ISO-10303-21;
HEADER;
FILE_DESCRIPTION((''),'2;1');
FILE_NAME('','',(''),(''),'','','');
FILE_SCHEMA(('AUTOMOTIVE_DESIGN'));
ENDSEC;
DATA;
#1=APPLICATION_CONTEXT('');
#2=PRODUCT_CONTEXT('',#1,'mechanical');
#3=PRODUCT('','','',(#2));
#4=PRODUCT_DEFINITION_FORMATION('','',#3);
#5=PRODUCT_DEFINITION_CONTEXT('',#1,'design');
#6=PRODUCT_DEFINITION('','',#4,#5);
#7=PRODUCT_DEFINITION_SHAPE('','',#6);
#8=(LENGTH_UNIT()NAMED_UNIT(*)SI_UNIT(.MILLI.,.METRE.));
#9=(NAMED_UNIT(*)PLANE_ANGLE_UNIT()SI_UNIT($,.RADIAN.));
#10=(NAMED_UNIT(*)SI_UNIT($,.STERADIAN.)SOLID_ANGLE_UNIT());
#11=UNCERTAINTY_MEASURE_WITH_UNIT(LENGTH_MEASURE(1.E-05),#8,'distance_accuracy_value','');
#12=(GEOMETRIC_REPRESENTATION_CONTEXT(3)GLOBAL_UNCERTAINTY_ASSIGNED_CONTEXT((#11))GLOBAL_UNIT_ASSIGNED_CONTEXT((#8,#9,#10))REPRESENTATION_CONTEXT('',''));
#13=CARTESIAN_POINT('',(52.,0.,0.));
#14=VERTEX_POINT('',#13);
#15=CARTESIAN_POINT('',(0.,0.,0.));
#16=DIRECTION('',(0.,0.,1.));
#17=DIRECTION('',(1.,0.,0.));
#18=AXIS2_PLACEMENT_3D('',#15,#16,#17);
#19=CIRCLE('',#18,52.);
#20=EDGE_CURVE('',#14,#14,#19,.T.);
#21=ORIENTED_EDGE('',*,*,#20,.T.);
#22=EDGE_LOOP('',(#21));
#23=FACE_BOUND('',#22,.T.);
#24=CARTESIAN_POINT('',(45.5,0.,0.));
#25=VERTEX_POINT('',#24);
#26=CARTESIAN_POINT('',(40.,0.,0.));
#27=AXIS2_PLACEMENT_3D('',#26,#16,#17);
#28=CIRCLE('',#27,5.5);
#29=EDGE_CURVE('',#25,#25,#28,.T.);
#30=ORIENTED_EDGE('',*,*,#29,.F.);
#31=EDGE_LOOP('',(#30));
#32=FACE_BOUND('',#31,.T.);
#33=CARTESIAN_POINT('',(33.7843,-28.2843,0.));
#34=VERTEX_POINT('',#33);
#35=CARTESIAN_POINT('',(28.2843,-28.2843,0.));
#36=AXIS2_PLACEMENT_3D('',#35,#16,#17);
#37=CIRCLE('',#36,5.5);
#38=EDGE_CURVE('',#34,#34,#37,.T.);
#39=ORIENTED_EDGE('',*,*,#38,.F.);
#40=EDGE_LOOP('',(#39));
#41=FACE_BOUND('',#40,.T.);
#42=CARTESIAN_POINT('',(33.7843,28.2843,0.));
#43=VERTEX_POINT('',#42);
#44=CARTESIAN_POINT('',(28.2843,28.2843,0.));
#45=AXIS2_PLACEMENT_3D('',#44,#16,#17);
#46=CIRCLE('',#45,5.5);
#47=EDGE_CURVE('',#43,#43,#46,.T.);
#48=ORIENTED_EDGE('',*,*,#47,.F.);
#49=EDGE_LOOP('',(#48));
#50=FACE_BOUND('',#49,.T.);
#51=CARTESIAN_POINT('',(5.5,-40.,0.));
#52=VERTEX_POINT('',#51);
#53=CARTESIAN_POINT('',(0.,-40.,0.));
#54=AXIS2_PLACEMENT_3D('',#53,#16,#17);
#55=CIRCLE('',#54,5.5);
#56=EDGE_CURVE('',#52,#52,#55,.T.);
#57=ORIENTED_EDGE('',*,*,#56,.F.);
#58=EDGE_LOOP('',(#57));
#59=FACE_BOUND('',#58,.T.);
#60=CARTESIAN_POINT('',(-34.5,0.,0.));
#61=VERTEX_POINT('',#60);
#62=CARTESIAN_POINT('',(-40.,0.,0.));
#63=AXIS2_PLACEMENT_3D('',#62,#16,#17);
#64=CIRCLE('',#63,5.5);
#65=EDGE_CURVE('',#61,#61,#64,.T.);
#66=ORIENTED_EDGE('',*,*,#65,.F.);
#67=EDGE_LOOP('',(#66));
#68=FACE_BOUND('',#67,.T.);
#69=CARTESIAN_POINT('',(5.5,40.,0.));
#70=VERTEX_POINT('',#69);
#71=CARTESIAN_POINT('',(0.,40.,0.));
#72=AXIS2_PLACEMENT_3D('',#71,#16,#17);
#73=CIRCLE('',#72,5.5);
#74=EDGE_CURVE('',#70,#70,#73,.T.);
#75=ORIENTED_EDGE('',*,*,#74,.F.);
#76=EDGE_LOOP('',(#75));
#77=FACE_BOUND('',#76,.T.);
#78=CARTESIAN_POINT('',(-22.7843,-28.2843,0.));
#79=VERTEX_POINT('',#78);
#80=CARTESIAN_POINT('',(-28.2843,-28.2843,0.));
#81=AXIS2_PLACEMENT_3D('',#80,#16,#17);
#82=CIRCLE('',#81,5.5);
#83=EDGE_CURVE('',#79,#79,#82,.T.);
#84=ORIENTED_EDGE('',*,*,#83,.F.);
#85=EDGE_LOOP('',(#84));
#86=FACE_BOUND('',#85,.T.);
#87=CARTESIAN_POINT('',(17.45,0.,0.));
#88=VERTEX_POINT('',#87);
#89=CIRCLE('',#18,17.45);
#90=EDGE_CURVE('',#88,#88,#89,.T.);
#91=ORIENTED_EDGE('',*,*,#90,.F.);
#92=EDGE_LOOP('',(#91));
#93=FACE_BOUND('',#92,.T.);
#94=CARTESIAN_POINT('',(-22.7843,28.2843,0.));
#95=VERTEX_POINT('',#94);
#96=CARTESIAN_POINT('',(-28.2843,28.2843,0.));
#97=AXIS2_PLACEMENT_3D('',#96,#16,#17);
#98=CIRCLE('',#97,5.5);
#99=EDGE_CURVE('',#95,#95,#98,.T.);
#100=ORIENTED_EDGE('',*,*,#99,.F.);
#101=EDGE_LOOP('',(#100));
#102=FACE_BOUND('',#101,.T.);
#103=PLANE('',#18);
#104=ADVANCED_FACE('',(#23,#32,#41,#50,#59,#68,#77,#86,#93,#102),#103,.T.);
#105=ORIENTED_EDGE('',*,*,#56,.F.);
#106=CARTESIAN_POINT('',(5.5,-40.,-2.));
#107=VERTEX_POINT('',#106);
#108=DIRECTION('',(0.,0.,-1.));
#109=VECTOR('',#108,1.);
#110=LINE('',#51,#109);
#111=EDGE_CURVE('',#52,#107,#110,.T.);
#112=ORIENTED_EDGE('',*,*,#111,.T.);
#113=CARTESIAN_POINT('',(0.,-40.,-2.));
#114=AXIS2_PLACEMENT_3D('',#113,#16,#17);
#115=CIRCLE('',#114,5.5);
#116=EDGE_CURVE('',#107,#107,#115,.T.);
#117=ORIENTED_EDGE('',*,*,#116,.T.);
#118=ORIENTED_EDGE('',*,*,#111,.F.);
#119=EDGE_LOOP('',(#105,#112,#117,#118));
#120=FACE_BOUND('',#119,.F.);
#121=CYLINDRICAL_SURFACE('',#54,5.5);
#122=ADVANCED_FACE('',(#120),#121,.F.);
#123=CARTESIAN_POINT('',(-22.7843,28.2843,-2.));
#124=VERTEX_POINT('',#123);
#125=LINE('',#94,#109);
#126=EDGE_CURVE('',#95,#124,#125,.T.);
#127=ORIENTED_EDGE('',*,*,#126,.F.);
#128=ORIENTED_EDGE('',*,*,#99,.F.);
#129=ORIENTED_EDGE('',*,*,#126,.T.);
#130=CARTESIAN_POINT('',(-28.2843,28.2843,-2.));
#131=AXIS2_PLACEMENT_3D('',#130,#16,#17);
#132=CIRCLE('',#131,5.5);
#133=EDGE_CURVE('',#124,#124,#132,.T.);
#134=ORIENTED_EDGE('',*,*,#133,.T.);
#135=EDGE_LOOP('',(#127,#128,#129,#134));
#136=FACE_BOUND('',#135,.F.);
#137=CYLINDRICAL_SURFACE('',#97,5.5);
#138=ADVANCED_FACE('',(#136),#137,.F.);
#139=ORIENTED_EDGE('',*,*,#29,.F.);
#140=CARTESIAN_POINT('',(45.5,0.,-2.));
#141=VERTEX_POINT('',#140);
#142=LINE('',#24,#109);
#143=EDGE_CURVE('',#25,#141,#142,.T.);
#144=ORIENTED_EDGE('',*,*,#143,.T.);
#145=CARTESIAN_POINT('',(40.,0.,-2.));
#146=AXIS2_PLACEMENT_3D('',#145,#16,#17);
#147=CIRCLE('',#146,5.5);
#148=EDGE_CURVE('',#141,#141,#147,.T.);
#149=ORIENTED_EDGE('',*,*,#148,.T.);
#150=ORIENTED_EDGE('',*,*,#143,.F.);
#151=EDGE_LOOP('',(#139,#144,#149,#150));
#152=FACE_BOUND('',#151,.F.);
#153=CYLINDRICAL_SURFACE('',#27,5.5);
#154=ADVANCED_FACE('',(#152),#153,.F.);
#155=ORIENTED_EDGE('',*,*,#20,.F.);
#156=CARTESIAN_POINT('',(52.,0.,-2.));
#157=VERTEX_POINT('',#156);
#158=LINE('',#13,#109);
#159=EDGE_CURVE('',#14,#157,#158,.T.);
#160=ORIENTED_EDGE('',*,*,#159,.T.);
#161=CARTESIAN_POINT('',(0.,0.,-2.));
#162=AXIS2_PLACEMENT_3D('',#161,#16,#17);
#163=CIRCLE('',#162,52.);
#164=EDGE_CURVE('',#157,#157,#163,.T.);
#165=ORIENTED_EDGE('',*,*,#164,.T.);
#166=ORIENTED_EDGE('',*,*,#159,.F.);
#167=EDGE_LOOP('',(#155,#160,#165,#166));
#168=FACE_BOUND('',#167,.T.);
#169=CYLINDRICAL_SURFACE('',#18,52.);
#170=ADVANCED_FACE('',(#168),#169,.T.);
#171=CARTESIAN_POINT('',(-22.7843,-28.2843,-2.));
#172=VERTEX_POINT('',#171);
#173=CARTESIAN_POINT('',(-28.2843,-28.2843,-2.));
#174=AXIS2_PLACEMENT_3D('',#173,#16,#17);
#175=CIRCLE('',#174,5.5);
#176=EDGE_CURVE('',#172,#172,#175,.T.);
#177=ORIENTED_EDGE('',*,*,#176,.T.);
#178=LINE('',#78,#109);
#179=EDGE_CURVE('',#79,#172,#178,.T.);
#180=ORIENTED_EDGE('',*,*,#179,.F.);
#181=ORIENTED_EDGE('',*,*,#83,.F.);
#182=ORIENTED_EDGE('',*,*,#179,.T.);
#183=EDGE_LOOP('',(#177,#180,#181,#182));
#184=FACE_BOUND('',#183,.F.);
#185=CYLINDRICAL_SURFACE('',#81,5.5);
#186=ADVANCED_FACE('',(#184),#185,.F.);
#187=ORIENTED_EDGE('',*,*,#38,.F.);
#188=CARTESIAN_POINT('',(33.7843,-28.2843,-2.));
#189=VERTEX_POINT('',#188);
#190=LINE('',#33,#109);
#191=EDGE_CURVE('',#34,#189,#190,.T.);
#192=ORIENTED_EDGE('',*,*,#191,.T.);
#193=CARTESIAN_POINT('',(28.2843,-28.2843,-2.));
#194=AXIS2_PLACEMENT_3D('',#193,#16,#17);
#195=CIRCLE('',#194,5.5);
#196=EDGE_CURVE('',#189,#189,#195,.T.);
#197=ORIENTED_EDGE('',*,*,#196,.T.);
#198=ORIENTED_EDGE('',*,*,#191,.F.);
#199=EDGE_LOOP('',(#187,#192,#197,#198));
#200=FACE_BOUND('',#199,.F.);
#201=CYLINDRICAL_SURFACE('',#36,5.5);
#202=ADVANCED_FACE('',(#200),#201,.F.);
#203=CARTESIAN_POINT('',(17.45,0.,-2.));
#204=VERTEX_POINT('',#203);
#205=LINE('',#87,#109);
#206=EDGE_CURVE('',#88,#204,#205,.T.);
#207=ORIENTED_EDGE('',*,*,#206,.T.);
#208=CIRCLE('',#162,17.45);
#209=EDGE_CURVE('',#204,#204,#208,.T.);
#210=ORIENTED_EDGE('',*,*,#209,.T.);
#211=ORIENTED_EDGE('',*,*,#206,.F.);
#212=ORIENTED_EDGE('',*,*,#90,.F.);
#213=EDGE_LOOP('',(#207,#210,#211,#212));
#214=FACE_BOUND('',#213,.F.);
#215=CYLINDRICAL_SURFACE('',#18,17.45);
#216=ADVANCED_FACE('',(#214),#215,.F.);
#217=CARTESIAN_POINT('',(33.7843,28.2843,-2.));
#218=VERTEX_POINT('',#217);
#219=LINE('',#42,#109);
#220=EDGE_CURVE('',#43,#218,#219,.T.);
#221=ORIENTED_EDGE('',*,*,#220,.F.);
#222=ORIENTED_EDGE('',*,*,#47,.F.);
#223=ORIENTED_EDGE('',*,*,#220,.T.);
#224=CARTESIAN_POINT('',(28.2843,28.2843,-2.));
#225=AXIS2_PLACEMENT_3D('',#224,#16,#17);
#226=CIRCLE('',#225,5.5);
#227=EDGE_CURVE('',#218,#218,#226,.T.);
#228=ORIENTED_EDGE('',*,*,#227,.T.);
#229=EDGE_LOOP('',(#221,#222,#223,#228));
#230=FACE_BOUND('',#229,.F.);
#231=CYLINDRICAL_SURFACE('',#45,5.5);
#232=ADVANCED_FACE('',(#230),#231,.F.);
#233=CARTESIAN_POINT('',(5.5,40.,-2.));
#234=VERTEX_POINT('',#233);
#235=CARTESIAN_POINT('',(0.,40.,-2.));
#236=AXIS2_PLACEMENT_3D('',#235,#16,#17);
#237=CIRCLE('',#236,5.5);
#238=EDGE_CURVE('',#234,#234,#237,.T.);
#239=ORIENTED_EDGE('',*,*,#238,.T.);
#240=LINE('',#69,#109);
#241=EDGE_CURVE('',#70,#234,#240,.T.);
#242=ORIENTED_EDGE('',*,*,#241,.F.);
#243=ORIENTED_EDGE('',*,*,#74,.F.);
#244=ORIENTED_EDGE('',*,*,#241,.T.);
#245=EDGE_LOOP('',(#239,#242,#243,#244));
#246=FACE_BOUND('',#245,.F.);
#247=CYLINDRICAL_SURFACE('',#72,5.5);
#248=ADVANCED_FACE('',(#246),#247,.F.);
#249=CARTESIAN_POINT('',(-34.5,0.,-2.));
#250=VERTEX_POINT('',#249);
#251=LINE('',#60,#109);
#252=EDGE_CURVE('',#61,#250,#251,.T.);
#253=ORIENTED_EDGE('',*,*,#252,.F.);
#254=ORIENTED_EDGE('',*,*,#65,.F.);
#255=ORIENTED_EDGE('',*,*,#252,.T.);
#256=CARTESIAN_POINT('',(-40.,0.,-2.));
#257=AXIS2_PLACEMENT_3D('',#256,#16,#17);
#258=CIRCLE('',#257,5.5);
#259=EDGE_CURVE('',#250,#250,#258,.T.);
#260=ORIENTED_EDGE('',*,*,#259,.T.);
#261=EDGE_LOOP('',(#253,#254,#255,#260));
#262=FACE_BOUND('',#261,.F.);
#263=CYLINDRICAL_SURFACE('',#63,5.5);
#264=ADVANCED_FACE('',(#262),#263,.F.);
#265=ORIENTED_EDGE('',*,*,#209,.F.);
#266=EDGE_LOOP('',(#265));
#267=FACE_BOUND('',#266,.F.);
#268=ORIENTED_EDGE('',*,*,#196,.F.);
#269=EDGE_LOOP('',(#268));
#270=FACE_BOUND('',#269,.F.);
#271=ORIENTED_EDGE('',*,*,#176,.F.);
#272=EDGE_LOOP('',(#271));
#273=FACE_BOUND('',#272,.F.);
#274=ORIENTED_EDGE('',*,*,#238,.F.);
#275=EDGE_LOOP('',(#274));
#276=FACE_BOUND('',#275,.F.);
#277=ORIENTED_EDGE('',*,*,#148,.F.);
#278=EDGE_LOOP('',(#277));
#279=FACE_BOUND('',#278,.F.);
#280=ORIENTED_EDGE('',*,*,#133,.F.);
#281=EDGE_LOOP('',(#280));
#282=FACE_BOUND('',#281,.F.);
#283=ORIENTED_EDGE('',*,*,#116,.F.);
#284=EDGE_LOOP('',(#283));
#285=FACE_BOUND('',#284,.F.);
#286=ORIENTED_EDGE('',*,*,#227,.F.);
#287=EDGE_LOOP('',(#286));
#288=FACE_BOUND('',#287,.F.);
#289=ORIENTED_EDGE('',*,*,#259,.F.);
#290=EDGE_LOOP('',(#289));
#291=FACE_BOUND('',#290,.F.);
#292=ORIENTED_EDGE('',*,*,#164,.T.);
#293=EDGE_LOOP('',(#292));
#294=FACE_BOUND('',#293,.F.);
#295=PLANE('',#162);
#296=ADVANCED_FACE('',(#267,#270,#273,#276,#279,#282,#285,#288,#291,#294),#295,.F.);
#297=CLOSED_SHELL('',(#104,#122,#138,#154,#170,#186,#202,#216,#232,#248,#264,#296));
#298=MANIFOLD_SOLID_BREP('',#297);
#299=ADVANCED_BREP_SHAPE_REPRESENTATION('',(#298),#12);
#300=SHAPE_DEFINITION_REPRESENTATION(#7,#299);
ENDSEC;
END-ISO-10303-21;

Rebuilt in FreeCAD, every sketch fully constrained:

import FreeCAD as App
import Part
import Sketcher

V = App.Vector
Q = App.Units.Quantity

doc = App.newDocument("Part")
body = doc.addObject("PartDesign::Body", "Body")

# Sketch on XY plane
sketch1 = body.newObject("Sketcher::SketchObject", "Sketch")
sketch1.AttachmentSupport = (doc.getObject("XY_Plane"), [""])
sketch1.MapMode = "FlatFace"
sketch1.addGeometry(Part.Circle(V(0, 0, 0), V(0, 0, 1), 52), False)
sketch1.addGeometry(Part.Circle(V(-28, -28, 0), V(0, 0, 1), 6), False)
sketch1.addGeometry(Part.Circle(V(0, -40, 0), V(0, 0, 1), 6), False)
sketch1.addGeometry(Part.Circle(V(28, -28, 0), V(0, 0, 1), 6), False)
sketch1.addGeometry(Part.Circle(V(-40, 0, 0), V(0, 0, 1), 6), False)
sketch1.addGeometry(Part.Circle(V(-28, 28, 0), V(0, 0, 1), 6), False)
sketch1.addGeometry(Part.Circle(V(0, 0, 0), V(0, 0, 1), 17), False)
sketch1.addGeometry(Part.Circle(V(40, 0, 0), V(0, 0, 1), 6), False)
sketch1.addGeometry(Part.Circle(V(0, 40, 0), V(0, 0, 1), 6), False)
sketch1.addGeometry(Part.Circle(V(28, 28, 0), V(0, 0, 1), 6), False)
sketch1.addConstraint(Sketcher.Constraint("Coincident", 0, 3, -1, 1))
sketch1.addConstraint(Sketcher.Constraint("Coincident", 6, 3, -1, 1))
sketch1.addConstraint(Sketcher.Constraint("Equal", 1, 2))
sketch1.addConstraint(Sketcher.Constraint("Equal", 2, 3))
sketch1.addConstraint(Sketcher.Constraint("Equal", 3, 4))
sketch1.addConstraint(Sketcher.Constraint("Equal", 4, 5))
sketch1.addConstraint(Sketcher.Constraint("Equal", 5, 7))
sketch1.addConstraint(Sketcher.Constraint("Equal", 7, 8))
sketch1.addConstraint(Sketcher.Constraint("Equal", 8, 9))
sketch1.addConstraint(Sketcher.Constraint("Symmetric", 3, 3, 5, 3, -1, 1))
sketch1.addConstraint(Sketcher.Constraint("Symmetric", 4, 3, 7, 3, -1, 1))
sketch1.addConstraint(Sketcher.Constraint("Symmetric", 2, 3, 8, 3, -1, 1))
sketch1.addConstraint(Sketcher.Constraint("Symmetric", 1, 3, 9, 3, -1, 1))
sketch1.addConstraint(Sketcher.Constraint("Symmetric", 1, 3, 3, 3, -2))
sketch1.addConstraint(Sketcher.Constraint("PointOnObject", 2, 3, -2))
sketch1.addConstraint(Sketcher.Constraint("PointOnObject", 4, 3, -1))
sketch1.addConstraint(Sketcher.Constraint("Diameter", 0, Q("104 mm")))
sketch1.addConstraint(Sketcher.Constraint("Diameter", 1, Q("11 mm")))
sketch1.addConstraint(Sketcher.Constraint("Diameter", 6, Q("34.9 mm")))
sketch1.addConstraint(Sketcher.Constraint("DistanceY", 2, 3, -1, 1, Q("40 mm")))
sketch1.addConstraint(Sketcher.Constraint("DistanceX", 4, 3, -1, 1, Q("40 mm")))
sketch1.addConstraint(Sketcher.Constraint("DistanceX", 1, 3, -1, 1, Q("28.2843 mm")))
sketch1.addConstraint(Sketcher.Constraint("DistanceY", 1, 3, -1, 1, Q("28.2843 mm")))
pad1 = body.newObject("PartDesign::Pad", "Pad")
pad1.Profile = sketch1
pad1.Length = 2
pad1.Reversed = True

doc.recompute()
